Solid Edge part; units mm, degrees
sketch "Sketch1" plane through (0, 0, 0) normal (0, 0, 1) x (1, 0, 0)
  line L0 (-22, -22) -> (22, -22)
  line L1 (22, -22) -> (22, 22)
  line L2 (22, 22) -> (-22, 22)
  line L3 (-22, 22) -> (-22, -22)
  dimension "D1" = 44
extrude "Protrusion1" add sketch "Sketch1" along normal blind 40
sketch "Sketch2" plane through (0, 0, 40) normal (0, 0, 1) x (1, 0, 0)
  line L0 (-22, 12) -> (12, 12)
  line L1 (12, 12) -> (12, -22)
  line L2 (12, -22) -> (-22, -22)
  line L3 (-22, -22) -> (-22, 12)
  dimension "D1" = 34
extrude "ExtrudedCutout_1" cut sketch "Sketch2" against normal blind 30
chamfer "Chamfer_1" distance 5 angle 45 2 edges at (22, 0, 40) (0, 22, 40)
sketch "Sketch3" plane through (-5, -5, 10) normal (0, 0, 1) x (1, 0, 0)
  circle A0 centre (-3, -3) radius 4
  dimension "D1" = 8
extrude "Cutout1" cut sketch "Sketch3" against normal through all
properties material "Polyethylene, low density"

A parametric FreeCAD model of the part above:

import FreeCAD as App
import Part
import Sketcher


def edges_at(feature, points):
    """Names of the edges that pass closest to the given points."""
    edges = feature.Shape.Edges
    near = lambda p: min(range(len(edges)), key=lambda i: edges[i].distToShape(Part.Vertex(*p))[0])
    return sorted({f"Edge{near(p) + 1}" for p in points})

doc = App.newDocument("Part")
body = doc.addObject("PartDesign::Body", "Body")

# Sketch on XY plane
sketch1 = body.newObject("Sketcher::SketchObject", "Sketch")
sketch1.AttachmentSupport = (doc.getObject("XY_Plane"), [""])
sketch1.MapMode = "FlatFace"
sketch1.addGeometry([
    Part.LineSegment(App.Vector(-22, 22, 0), App.Vector(-22, -22, 0)),
    Part.LineSegment(App.Vector(-22, -22, 0), App.Vector(22, -22, 0)),
    Part.LineSegment(App.Vector(22, -22, 0), App.Vector(22, 22, 0)),
    Part.LineSegment(App.Vector(22, 22, 0), App.Vector(-22, 22, 0)),
], False)
sketch1.addConstraint([
    Sketcher.Constraint("Coincident", 0, 2, 1, 1),
    Sketcher.Constraint("Coincident", 1, 2, 2, 1),
    Sketcher.Constraint("Coincident", 2, 2, 3, 1),
    Sketcher.Constraint("Coincident", 3, 2, 0, 1),
    Sketcher.Constraint("Vertical", 0),
    Sketcher.Constraint("Horizontal", 1),
    Sketcher.Constraint("Vertical", 2),
    Sketcher.Constraint("Horizontal", 3),
    Sketcher.Constraint("Symmetric", 0, 2, 2, 2, -1, 1),
    Sketcher.Constraint("Equal", 3, 0),
    Sketcher.Constraint("DistanceX", 0, 2, -1, 1, 22.0),
])
pad1 = body.newObject("PartDesign::Pad", "Pad")
pad1.Profile = sketch1
pad1.Length = 40

# Sketch on XY plane
sketch2 = body.newObject("Sketcher::SketchObject", "Sketch001")
sketch2.AttachmentSupport = (doc.getObject("XY_Plane"), [""])
sketch2.MapMode = "FlatFace"
sketch2.AttachmentOffset = App.Placement(App.Vector(0, 0, 40), App.Rotation())
sketch2.addGeometry([
    Part.LineSegment(App.Vector(12, 12, 0), App.Vector(-22, 12, 0)),
    Part.LineSegment(App.Vector(-22, 12, 0), App.Vector(-22, -22, 0)),
    Part.LineSegment(App.Vector(-22, -22, 0), App.Vector(12, -22, 0)),
    Part.LineSegment(App.Vector(12, -22, 0), App.Vector(12, 12, 0)),
], False)
sketch2.addConstraint([
    Sketcher.Constraint("Coincident", 0, 2, 1, 1),
    Sketcher.Constraint("Coincident", 1, 2, 2, 1),
    Sketcher.Constraint("Coincident", 2, 2, 3, 1),
    Sketcher.Constraint("Coincident", 3, 2, 0, 1),
    Sketcher.Constraint("Horizontal", 0),
    Sketcher.Constraint("Vertical", 1),
    Sketcher.Constraint("Horizontal", 2),
    Sketcher.Constraint("Vertical", 3),
    Sketcher.Constraint("Equal", 2, 1),
    Sketcher.Constraint("DistanceX", 0, 2, -1, 1, 22.0),
    Sketcher.Constraint("DistanceY", 1, 2, -1, 1, 22.0),
    Sketcher.Constraint("DistanceX", 0, 2, 0, 1, 34.0),
])
pocket1 = body.newObject("PartDesign::Pocket", "Pocket")
pocket1.Profile = sketch2
pocket1.Length = 30
doc.recompute()

chamfer = body.newObject("PartDesign::Chamfer", "Chamfer")
chamfer.Base = (pocket1, edges_at(pocket1, [(22, 0, 40), (0, 22, 40)]))
chamfer.Size = 5

# Sketch on XY plane
sketch3 = body.newObject("Sketcher::SketchObject", "Sketch002")
sketch3.AttachmentSupport = (doc.getObject("XY_Plane"), [""])
sketch3.MapMode = "FlatFace"
sketch3.AttachmentOffset = App.Placement(App.Vector(0, 0, 10), App.Rotation())
sketch3.addGeometry(Part.Circle(App.Vector(-8, -8, 0), App.Vector(0, 0, 1), 4), False)
sketch3.addConstraint([
    Sketcher.Constraint("Diameter", 0, 8.0),
    Sketcher.Constraint("DistanceX", 0, 3, -1, 1, 8.0),
    Sketcher.Constraint("DistanceY", 0, 3, -1, 1, 8.0),
])
pocket2 = body.newObject("PartDesign::Pocket", "Pocket001")
pocket2.Profile = sketch3
pocket2.Type = "ThroughAll"

doc.recompute()
